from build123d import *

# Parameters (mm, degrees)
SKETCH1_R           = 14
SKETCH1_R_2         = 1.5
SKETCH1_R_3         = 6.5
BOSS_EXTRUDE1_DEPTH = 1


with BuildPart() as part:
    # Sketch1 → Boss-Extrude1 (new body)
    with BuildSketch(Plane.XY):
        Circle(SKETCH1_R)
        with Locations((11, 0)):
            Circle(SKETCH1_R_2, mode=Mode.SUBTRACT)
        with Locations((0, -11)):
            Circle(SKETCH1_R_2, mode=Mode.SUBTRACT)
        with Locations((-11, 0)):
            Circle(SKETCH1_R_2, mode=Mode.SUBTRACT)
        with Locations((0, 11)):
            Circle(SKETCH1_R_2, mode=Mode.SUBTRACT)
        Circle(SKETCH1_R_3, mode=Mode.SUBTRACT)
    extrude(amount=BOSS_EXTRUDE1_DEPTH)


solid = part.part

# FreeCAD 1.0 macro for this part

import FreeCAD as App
import Part
import Sketcher
Q = App.Units.Quantity

doc = App.newDocument("Part")
body = doc.addObject("PartDesign::Body", "Body")

# Sketch on XY plane
sketch1 = body.newObject("Sketcher::SketchObject", "Sketch")
sketch1.AttachmentSupport = (doc.getObject("XY_Plane"), [""])
sketch1.MapMode = "FlatFace"
sketch1.addGeometry([
    Part.Circle(App.Vector(0, 0, 0), App.Vector(0, 0, 1), 14),  # 0
    Part.Circle(App.Vector(0, -11, 0), App.Vector(0, 0, 1), 1.5),  # 1
    Part.Circle(App.Vector(-11, 0, 0), App.Vector(0, 0, 1), 1.5),  # 2
    Part.Circle(App.Vector(0, 0, 0), App.Vector(0, 0, 1), 6.5),  # 3
    Part.Circle(App.Vector(11, 0, 0), App.Vector(0, 0, 1), 1.5),  # 4
    Part.Circle(App.Vector(0, 11, 0), App.Vector(0, 0, 1), 1.5),  # 5
], False)
sketch1.addConstraint([
    Sketcher.Constraint("Coincident", 0, 3, -1, 1),
    Sketcher.Constraint("Coincident", 3, 3, -1, 1),
    Sketcher.Constraint("Equal", 1, 2),
    Sketcher.Constraint("Equal", 2, 4),
    Sketcher.Constraint("Equal", 4, 5),
    Sketcher.Constraint("Symmetric", 2, 3, 4, 3, -1, 1),
    Sketcher.Constraint("Symmetric", 1, 3, 5, 3, -1, 1),
    Sketcher.Constraint("PointOnObject", 1, 3, -2),
    Sketcher.Constraint("PointOnObject", 2, 3, -1),
    Sketcher.Constraint("Diameter", 0, Q("28 mm")),
    Sketcher.Constraint("Diameter", 1, Q("3 mm")),
    Sketcher.Constraint("Diameter", 3, Q("13 mm")),
    Sketcher.Constraint("DistanceY", 1, 3, -1, 1, Q("11 mm")),
    Sketcher.Constraint("DistanceX", 2, 3, -1, 1, Q("11 mm")),
])
pad1 = body.newObject("PartDesign::Pad", "Pad")
pad1.Profile = sketch1
pad1.Length = 1

doc.recompute()
